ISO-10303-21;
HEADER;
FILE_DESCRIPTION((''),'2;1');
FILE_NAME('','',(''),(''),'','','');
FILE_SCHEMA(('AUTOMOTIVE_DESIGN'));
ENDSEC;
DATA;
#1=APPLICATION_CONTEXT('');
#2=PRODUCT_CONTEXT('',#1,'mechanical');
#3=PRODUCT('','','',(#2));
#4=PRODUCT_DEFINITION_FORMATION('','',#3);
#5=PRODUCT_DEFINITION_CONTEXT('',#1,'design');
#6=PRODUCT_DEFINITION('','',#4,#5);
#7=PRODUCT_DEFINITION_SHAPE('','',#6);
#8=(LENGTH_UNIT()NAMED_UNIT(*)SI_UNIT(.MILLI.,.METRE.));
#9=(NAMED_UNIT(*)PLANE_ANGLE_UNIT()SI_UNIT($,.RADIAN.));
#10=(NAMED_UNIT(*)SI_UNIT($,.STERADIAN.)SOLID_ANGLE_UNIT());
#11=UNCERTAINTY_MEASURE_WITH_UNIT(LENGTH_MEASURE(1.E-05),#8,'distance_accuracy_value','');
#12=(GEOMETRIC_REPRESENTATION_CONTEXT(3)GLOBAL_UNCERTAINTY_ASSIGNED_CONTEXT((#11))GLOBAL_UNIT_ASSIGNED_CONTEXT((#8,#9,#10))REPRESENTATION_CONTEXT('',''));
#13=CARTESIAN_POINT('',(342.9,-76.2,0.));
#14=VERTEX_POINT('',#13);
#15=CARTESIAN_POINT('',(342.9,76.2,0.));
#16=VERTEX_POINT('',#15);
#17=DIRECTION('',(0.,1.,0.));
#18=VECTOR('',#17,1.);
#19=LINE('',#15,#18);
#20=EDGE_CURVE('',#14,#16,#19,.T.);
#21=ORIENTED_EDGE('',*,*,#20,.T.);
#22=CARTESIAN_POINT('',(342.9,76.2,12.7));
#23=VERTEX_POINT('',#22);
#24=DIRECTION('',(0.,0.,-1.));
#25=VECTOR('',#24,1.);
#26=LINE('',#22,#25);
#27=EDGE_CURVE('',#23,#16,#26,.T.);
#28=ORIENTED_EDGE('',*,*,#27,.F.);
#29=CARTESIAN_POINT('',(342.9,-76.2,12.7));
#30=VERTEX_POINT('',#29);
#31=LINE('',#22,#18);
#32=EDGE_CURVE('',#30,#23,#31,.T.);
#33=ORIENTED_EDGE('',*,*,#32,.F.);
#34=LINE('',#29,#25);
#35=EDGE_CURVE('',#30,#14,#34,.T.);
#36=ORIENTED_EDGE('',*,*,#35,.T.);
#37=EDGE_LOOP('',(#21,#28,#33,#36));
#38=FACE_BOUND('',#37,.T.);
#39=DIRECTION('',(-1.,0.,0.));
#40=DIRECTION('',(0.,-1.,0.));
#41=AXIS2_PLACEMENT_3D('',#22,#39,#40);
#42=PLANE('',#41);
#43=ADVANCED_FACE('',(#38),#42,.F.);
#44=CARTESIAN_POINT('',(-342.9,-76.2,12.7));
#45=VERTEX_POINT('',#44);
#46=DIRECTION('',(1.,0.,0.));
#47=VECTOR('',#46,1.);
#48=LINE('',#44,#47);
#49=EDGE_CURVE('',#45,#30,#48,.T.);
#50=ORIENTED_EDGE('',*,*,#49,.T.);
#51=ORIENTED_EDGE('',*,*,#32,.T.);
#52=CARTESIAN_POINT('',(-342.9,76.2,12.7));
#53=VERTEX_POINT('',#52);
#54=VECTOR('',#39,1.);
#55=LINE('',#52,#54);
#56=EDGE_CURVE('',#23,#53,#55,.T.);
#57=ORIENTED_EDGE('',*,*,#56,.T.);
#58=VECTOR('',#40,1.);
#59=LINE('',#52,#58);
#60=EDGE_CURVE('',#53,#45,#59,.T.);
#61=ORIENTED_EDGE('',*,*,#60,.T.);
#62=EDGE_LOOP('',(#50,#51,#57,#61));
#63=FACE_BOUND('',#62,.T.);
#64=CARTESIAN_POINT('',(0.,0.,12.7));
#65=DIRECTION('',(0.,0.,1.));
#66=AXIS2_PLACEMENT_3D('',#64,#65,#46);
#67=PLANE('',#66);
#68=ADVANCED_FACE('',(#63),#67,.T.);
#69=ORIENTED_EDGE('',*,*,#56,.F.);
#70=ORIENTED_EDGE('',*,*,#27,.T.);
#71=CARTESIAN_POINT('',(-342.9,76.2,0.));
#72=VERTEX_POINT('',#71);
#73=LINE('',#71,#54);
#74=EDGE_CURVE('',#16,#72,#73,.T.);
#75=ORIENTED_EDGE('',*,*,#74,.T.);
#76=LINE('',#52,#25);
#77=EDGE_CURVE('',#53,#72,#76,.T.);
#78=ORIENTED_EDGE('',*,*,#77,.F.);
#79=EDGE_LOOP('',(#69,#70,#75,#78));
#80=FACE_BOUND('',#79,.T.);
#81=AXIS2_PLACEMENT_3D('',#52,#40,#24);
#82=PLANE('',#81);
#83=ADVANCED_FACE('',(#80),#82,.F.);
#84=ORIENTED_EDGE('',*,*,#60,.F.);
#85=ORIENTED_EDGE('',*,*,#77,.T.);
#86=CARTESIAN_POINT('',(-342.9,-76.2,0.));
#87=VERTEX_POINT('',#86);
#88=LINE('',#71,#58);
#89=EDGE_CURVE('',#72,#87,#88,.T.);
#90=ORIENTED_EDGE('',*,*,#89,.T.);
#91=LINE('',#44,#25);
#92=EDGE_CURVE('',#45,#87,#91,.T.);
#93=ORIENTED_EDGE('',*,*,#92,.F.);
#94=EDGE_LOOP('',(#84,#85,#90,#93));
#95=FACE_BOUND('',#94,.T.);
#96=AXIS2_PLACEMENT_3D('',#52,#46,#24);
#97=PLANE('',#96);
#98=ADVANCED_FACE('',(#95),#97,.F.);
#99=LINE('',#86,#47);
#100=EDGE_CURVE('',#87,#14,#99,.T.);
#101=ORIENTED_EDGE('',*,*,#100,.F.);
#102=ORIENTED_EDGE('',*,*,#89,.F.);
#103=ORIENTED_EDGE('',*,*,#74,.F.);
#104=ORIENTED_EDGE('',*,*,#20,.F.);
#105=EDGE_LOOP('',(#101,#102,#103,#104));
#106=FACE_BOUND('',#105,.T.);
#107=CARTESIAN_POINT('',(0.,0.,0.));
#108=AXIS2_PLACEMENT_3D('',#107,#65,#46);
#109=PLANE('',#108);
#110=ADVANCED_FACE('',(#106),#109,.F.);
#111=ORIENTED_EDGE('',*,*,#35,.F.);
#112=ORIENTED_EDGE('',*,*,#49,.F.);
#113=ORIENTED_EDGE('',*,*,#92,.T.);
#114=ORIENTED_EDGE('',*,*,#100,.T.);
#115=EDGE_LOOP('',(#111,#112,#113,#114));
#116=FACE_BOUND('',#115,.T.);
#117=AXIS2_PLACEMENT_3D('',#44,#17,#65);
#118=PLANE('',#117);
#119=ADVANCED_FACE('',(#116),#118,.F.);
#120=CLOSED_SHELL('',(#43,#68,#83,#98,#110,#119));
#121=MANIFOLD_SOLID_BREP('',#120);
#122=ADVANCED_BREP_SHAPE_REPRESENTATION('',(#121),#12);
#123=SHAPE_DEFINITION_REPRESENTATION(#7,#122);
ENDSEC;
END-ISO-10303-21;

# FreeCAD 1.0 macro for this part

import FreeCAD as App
import Part
import Sketcher

V = App.Vector
Q = App.Units.Quantity

doc = App.newDocument("Part")
params = doc.addObject("Spreadsheet::Sheet", "Params")
for row, (alias, value) in enumerate([
    ("sketch1_width", "27 in"),
    ("sketch1_height", "6 in"),
    ("pad1_length", "0.5 in"),
], start=1):
    params.set(f"A{row}", alias)
    params.set(f"B{row}", "=" + value)
    params.setAlias(f"B{row}", alias)

body = doc.addObject("PartDesign::Body", "Body")

sketch1 = doc.addObject("Sketcher::SketchObject", "Sketch")
body.addObject(sketch1)
sketch1.AttachmentSupport = (doc.XY_Plane, [""])
sketch1.MapMode = "FlatFace"
sketch1.addGeometry([
    Part.LineSegment(V(-343, 76, 0), V(-343, -76, 0)),
    Part.LineSegment(V(-343, -76, 0), V(343, -76, 0)),
    Part.LineSegment(V(343, -76, 0), V(343, 76, 0)),
    Part.LineSegment(V(343, 76, 0), V(-343, 76, 0)),
], False)
sketch1.addConstraint([
    Sketcher.Constraint("Coincident", 0, 2, 1, 1),
    Sketcher.Constraint("Coincident", 1, 2, 2, 1),
    Sketcher.Constraint("Coincident", 2, 2, 3, 1),
    Sketcher.Constraint("Coincident", 3, 2, 0, 1),
    Sketcher.Constraint("Vertical", 0),
    Sketcher.Constraint("Horizontal", 1),
    Sketcher.Constraint("Vertical", 2),
    Sketcher.Constraint("Horizontal", 3),
    Sketcher.Constraint("Symmetric", 0, 2, 2, 2, -1, 1),
    Sketcher.Constraint("DistanceX", 1, 1, 1, 2, Q("27 in")),
    Sketcher.Constraint("DistanceY", 0, 2, 0, 1, Q("6 in")),
])
sketch1.setExpression("Constraints[9]", "Params.sketch1_width")
sketch1.setExpression("Constraints[10]", "Params.sketch1_height")
pad1 = doc.addObject("PartDesign::Pad", "Pad")
body.addObject(pad1)
pad1.Profile = sketch1
pad1.setExpression("Length", "Params.pad1_length")

doc.recompute()
